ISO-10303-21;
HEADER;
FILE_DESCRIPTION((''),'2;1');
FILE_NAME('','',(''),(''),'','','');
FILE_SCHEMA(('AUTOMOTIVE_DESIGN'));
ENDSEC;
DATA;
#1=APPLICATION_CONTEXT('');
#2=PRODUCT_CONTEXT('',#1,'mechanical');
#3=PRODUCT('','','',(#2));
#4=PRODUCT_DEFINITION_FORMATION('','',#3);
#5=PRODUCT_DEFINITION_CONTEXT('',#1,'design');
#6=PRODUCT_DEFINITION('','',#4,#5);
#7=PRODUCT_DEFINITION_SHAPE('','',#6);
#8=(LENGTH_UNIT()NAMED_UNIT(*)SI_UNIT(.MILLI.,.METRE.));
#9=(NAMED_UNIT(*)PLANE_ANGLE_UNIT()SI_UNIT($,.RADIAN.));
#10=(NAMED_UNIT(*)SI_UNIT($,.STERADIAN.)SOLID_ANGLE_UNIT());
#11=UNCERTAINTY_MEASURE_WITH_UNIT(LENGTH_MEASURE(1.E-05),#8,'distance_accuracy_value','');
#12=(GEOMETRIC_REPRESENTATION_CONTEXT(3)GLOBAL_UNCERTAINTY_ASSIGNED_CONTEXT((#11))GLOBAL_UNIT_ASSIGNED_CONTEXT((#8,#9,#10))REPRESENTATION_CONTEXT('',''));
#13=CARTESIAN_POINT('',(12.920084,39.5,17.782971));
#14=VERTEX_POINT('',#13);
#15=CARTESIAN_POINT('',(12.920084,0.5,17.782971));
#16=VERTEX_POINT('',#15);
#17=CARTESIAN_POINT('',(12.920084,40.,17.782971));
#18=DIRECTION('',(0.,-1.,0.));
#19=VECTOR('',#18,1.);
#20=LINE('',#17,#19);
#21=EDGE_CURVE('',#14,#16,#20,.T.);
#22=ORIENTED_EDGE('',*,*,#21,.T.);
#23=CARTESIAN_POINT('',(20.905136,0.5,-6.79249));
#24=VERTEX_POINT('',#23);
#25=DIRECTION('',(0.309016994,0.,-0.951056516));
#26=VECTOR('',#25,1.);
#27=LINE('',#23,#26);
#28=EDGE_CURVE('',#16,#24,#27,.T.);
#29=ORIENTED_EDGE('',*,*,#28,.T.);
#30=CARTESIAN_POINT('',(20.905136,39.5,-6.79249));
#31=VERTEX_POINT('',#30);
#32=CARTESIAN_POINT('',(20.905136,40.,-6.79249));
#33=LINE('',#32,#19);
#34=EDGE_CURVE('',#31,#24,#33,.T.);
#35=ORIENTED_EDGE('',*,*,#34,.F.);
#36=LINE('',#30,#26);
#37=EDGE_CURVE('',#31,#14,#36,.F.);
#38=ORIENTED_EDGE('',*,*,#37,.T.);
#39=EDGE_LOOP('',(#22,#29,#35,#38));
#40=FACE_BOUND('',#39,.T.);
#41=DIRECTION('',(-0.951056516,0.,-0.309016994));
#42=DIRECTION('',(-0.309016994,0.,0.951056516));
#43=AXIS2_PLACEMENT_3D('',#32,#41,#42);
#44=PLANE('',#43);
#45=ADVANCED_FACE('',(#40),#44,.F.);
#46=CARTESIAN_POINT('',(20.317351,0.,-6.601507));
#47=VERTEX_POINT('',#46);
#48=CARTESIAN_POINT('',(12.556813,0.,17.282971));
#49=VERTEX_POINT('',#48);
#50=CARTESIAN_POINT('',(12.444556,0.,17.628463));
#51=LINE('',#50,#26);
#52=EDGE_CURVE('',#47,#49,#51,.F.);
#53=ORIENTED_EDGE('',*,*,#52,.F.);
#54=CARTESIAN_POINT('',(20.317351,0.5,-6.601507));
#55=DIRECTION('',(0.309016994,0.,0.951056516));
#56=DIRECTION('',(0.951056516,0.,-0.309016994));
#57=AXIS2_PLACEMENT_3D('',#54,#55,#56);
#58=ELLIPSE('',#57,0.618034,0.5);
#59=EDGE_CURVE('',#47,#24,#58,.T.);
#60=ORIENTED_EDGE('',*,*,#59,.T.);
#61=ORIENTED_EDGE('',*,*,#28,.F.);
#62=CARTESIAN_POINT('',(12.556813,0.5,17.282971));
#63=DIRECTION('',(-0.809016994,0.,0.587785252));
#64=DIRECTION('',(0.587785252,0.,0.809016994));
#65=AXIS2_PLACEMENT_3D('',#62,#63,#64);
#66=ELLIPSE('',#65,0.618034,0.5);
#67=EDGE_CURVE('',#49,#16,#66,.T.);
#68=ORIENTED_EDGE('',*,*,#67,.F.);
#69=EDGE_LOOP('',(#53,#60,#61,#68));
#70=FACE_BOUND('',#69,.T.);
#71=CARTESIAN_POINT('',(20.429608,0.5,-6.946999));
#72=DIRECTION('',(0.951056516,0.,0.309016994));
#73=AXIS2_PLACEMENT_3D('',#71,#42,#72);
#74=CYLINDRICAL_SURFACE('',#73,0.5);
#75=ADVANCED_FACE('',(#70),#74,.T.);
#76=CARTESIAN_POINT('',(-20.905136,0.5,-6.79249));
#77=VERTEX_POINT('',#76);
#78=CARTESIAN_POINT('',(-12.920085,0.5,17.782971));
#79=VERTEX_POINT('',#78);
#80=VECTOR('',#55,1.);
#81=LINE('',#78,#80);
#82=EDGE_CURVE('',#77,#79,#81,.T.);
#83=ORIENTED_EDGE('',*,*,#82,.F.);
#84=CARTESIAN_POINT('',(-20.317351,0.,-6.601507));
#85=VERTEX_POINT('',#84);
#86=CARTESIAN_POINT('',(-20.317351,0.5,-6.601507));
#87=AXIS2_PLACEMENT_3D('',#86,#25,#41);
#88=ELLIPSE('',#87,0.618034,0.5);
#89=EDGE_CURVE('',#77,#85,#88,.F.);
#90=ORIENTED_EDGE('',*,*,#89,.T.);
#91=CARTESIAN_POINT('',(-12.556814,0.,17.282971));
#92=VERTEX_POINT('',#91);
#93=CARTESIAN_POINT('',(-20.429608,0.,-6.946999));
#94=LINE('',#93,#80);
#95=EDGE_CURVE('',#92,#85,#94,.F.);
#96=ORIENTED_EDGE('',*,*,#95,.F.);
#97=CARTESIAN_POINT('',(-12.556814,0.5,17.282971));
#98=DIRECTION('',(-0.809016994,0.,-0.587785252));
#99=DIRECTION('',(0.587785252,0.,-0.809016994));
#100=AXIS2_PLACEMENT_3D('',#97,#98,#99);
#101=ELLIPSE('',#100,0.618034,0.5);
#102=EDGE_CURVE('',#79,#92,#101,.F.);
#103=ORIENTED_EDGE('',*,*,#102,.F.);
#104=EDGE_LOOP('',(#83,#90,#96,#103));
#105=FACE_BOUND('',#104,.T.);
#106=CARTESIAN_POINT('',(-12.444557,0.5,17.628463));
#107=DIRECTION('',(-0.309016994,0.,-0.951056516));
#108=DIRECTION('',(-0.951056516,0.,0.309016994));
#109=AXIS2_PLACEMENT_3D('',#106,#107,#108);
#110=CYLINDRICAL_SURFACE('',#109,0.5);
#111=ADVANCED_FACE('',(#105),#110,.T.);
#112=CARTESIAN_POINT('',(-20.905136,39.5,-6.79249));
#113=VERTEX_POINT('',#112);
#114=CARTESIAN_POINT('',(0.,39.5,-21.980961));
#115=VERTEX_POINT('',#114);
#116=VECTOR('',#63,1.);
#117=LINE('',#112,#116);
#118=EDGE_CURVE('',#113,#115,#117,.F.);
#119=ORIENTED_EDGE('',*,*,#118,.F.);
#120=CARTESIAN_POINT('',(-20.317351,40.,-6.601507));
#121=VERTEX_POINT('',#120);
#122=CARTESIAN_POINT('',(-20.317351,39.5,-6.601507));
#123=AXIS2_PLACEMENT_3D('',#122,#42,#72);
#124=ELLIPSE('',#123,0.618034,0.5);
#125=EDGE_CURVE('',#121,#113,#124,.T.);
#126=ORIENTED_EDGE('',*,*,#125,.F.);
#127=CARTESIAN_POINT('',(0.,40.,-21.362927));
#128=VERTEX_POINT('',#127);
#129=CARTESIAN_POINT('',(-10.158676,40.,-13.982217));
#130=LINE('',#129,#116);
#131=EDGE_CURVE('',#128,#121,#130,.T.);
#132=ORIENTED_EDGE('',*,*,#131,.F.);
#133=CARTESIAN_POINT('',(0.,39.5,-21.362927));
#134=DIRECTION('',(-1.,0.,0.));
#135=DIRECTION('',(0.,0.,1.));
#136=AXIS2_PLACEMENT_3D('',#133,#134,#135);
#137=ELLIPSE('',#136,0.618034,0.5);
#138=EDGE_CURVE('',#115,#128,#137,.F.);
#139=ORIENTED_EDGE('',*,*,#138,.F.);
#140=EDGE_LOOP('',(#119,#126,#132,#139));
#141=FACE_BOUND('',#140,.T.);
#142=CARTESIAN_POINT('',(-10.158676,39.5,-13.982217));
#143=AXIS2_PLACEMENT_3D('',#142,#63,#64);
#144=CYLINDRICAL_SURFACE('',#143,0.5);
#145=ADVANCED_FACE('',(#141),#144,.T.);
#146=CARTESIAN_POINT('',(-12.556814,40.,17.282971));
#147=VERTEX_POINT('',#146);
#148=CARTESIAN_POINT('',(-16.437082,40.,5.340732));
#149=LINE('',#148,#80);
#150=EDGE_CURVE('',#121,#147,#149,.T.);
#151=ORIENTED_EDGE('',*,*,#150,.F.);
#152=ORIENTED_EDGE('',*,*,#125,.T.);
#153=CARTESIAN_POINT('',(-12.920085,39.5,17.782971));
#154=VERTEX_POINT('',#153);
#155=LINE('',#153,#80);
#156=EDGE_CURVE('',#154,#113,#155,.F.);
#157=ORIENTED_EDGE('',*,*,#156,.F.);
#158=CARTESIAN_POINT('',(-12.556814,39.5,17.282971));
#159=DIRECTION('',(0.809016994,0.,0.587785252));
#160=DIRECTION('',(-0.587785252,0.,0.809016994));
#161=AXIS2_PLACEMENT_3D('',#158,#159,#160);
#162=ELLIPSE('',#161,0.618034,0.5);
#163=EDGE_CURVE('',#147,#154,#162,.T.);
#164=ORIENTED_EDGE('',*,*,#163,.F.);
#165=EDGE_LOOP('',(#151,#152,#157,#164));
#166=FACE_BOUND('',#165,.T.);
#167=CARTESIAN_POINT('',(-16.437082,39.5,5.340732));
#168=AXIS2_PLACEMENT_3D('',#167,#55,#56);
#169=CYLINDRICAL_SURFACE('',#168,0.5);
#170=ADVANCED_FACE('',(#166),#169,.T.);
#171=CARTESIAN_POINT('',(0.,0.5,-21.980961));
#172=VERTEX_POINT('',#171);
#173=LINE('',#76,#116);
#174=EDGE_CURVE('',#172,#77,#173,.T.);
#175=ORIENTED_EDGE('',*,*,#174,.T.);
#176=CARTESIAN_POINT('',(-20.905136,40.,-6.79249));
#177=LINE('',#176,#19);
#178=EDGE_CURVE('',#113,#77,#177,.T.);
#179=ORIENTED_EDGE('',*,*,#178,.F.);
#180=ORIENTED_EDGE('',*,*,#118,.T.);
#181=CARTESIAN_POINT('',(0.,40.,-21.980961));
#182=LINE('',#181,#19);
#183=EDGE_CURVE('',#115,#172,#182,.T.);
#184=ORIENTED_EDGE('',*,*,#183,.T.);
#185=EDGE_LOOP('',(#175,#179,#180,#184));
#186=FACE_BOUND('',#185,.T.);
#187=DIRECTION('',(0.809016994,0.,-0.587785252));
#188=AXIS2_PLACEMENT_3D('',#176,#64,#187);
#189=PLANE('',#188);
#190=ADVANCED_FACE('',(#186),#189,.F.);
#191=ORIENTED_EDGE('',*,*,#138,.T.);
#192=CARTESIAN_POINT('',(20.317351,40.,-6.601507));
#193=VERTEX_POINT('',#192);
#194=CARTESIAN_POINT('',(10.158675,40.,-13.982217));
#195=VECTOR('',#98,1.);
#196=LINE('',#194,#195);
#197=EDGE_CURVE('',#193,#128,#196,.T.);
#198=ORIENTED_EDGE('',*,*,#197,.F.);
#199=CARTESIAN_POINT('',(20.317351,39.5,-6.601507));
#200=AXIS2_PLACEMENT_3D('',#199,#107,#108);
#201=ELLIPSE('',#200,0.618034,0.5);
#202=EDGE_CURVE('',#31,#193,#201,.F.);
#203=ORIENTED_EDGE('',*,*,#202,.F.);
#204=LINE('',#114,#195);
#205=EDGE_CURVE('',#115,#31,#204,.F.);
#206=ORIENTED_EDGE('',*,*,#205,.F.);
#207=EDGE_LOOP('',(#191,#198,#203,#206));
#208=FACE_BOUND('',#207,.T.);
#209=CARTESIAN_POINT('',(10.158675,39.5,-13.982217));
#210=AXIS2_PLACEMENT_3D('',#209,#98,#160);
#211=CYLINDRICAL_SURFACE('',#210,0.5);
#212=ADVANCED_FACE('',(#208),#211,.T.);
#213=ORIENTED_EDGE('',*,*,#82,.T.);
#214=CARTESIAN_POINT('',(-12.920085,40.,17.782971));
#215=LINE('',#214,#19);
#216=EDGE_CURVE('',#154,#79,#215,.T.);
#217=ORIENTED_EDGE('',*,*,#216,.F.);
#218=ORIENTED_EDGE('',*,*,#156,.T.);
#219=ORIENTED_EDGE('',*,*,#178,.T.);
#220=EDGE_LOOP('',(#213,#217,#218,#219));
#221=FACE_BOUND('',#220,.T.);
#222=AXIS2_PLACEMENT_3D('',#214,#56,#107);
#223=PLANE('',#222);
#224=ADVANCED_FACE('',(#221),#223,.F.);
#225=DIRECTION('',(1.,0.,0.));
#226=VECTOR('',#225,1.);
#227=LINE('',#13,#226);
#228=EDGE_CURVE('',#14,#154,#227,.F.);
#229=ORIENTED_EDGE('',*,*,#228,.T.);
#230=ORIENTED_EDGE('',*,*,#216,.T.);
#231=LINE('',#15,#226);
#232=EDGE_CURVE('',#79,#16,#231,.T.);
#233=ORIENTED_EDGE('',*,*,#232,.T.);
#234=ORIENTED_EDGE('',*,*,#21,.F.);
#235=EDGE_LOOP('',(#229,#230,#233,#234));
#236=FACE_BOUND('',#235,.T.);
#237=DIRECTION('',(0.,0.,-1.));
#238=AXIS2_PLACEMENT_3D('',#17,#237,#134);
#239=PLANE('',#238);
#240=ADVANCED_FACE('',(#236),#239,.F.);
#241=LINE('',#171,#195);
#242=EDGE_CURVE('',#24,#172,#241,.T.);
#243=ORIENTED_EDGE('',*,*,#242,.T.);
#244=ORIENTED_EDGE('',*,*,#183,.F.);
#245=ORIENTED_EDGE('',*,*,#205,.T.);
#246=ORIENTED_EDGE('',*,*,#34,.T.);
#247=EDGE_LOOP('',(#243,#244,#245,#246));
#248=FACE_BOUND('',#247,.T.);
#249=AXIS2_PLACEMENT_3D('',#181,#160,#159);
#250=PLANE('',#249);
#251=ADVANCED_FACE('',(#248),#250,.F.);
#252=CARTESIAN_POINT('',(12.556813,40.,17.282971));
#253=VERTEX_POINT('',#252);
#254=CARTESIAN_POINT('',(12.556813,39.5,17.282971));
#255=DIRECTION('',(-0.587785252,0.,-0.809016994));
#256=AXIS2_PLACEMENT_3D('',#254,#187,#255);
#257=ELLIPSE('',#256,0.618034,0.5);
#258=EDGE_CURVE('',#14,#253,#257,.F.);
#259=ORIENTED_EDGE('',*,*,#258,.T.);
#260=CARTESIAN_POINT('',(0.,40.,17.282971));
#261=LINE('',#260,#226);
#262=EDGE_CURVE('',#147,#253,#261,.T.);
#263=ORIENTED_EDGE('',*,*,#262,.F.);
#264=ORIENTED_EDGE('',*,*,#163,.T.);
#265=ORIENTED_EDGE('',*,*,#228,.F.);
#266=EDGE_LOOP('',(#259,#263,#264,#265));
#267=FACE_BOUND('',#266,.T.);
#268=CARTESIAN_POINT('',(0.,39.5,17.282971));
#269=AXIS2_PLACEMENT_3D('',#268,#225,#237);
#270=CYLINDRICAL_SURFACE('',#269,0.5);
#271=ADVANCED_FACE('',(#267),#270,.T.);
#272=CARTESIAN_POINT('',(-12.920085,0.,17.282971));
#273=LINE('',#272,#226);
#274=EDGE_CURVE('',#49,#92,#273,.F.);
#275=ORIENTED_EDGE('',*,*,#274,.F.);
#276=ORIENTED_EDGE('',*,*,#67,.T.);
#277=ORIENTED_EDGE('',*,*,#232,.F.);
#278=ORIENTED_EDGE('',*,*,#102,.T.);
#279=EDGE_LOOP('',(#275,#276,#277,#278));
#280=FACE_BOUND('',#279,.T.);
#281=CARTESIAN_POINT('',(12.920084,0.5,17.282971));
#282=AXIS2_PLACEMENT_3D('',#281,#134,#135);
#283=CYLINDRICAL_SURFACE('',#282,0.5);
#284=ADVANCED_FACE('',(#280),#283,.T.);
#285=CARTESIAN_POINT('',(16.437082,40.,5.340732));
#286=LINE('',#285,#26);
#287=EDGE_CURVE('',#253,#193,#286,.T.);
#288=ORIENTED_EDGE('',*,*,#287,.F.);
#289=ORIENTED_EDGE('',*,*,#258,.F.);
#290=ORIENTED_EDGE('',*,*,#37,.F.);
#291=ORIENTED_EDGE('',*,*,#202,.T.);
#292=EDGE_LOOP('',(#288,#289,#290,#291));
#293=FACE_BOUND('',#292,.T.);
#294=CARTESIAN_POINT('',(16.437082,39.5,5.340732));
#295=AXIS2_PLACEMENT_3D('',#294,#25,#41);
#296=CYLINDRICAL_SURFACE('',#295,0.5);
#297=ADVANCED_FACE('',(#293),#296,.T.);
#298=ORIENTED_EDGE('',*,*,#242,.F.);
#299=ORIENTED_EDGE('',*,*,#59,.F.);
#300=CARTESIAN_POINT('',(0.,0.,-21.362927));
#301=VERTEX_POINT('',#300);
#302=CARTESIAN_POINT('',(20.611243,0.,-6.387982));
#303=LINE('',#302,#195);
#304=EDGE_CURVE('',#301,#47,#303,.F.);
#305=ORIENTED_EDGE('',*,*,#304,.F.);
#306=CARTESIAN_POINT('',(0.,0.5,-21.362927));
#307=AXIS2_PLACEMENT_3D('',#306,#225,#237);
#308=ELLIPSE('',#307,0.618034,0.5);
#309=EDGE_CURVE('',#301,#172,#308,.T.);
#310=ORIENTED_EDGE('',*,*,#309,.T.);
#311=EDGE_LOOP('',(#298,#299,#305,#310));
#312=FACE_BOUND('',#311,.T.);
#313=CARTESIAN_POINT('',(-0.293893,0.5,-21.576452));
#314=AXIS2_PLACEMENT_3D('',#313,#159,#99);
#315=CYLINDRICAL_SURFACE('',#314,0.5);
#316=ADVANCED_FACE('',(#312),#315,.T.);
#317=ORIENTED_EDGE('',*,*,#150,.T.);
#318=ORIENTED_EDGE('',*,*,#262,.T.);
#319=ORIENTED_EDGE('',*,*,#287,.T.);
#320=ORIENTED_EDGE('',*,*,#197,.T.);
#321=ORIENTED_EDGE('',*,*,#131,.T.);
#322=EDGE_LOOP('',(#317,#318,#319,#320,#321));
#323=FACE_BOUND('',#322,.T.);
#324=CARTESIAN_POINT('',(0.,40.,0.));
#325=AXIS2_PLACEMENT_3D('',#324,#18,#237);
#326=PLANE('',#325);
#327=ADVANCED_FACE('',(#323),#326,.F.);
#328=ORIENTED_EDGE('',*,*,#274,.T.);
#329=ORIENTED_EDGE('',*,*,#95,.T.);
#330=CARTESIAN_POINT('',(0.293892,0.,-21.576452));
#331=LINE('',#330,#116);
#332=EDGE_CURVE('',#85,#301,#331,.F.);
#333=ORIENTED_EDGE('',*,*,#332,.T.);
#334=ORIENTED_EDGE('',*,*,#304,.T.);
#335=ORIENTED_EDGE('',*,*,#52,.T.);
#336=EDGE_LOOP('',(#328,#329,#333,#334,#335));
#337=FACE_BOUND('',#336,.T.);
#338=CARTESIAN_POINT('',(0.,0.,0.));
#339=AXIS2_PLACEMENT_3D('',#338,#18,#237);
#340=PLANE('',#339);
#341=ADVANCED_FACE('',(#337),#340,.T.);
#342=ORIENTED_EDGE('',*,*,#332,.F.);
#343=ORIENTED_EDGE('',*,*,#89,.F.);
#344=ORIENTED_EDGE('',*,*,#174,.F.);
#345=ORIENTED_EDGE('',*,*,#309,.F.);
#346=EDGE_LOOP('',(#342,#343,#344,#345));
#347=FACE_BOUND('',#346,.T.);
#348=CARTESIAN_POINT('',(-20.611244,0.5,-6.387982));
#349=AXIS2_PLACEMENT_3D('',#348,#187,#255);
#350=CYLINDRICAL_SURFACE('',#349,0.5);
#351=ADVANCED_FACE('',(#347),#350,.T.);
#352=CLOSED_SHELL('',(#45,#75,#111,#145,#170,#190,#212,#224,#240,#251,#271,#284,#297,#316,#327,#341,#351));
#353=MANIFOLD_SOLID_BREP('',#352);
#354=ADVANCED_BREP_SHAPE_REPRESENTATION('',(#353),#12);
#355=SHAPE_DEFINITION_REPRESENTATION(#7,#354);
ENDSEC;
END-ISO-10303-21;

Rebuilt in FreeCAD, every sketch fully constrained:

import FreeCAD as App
import Part
import Sketcher

V = App.Vector
Q = App.Units.Quantity


def edges_at(feature, points):
    """Names of the edges that pass closest to the given points."""
    edges = feature.Shape.Edges
    near = lambda p: min(range(len(edges)), key=lambda i: edges[i].distToShape(Part.Vertex(*p))[0])
    return sorted({f"Edge{near(p) + 1}" for p in points})

doc = App.newDocument("Part")
body = doc.addObject("PartDesign::Body", "Body")

# Sketch on XZ plane
sketch1 = doc.addObject("Sketcher::SketchObject", "Sketch")
body.addObject(sketch1)
sketch1.AttachmentSupport = (doc.XZ_Plane, [""])
sketch1.MapMode = "FlatFace"
sketch1.addGeometry([
    Part.LineSegment(V(-21, -7, 0), V(-13, 18, 0)),  # 0
    Part.LineSegment(V(-13, 18, 0), V(13, 18, 0)),  # 1
    Part.LineSegment(V(13, 18, 0), V(21, -7, 0)),  # 2
    Part.LineSegment(V(21, -7, 0), V(0, -22, 0)),  # 3
    Part.LineSegment(V(0, -22, 0), V(-21, -7, 0)),  # 4
], False)
sketch1.addConstraint([
    Sketcher.Constraint("Coincident", 0, 2, 1, 1),
    Sketcher.Constraint("Coincident", 1, 2, 2, 1),
    Sketcher.Constraint("Coincident", 2, 2, 3, 1),
    Sketcher.Constraint("Coincident", 3, 2, 4, 1),
    Sketcher.Constraint("Coincident", 4, 2, 0, 1),
    Sketcher.Constraint("Horizontal", 1),
    Sketcher.Constraint("Symmetric", 2, 2, 4, 2, -2),
    Sketcher.Constraint("PointOnObject", 3, 2, -2),
    Sketcher.Constraint("Equal", 0, 2),
    Sketcher.Constraint("Equal", 2, 3),
    Sketcher.Constraint("Angle", 0, Q("72 deg")),
    Sketcher.Constraint("Angle", 3, Q("-144 deg")),
    Sketcher.Constraint("DistanceX", 1, 1, 1, 2, 25.840169),
    Sketcher.Constraint("DistanceY", -1, 1, 0, 2, 17.782971),
])
pad1 = doc.addObject("PartDesign::Pad", "Pad")
body.addObject(pad1)
pad1.Profile = sketch1
pad1.Length = 40
pad1.Reversed = True
doc.recompute()

fillet = doc.addObject("PartDesign::Fillet", "Fillet")
body.addObject(fillet)
fillet.Base = (pad1, edges_at(pad1, [
    (10.453, 40, -14.387),
    (-10.453, 40, -14.387),
    (-16.913, 40, 5.495),
    (0, 40, 17.783),
    (-16.913, 0, 5.495),
    (-10.453, 0, -14.387),
    (10.453, 0, -14.387),
    (16.913, 0, 5.495),
    (0, 0, 17.783),
    (16.913, 40, 5.495),
]))
fillet.Radius = 0.5

doc.recompute()
